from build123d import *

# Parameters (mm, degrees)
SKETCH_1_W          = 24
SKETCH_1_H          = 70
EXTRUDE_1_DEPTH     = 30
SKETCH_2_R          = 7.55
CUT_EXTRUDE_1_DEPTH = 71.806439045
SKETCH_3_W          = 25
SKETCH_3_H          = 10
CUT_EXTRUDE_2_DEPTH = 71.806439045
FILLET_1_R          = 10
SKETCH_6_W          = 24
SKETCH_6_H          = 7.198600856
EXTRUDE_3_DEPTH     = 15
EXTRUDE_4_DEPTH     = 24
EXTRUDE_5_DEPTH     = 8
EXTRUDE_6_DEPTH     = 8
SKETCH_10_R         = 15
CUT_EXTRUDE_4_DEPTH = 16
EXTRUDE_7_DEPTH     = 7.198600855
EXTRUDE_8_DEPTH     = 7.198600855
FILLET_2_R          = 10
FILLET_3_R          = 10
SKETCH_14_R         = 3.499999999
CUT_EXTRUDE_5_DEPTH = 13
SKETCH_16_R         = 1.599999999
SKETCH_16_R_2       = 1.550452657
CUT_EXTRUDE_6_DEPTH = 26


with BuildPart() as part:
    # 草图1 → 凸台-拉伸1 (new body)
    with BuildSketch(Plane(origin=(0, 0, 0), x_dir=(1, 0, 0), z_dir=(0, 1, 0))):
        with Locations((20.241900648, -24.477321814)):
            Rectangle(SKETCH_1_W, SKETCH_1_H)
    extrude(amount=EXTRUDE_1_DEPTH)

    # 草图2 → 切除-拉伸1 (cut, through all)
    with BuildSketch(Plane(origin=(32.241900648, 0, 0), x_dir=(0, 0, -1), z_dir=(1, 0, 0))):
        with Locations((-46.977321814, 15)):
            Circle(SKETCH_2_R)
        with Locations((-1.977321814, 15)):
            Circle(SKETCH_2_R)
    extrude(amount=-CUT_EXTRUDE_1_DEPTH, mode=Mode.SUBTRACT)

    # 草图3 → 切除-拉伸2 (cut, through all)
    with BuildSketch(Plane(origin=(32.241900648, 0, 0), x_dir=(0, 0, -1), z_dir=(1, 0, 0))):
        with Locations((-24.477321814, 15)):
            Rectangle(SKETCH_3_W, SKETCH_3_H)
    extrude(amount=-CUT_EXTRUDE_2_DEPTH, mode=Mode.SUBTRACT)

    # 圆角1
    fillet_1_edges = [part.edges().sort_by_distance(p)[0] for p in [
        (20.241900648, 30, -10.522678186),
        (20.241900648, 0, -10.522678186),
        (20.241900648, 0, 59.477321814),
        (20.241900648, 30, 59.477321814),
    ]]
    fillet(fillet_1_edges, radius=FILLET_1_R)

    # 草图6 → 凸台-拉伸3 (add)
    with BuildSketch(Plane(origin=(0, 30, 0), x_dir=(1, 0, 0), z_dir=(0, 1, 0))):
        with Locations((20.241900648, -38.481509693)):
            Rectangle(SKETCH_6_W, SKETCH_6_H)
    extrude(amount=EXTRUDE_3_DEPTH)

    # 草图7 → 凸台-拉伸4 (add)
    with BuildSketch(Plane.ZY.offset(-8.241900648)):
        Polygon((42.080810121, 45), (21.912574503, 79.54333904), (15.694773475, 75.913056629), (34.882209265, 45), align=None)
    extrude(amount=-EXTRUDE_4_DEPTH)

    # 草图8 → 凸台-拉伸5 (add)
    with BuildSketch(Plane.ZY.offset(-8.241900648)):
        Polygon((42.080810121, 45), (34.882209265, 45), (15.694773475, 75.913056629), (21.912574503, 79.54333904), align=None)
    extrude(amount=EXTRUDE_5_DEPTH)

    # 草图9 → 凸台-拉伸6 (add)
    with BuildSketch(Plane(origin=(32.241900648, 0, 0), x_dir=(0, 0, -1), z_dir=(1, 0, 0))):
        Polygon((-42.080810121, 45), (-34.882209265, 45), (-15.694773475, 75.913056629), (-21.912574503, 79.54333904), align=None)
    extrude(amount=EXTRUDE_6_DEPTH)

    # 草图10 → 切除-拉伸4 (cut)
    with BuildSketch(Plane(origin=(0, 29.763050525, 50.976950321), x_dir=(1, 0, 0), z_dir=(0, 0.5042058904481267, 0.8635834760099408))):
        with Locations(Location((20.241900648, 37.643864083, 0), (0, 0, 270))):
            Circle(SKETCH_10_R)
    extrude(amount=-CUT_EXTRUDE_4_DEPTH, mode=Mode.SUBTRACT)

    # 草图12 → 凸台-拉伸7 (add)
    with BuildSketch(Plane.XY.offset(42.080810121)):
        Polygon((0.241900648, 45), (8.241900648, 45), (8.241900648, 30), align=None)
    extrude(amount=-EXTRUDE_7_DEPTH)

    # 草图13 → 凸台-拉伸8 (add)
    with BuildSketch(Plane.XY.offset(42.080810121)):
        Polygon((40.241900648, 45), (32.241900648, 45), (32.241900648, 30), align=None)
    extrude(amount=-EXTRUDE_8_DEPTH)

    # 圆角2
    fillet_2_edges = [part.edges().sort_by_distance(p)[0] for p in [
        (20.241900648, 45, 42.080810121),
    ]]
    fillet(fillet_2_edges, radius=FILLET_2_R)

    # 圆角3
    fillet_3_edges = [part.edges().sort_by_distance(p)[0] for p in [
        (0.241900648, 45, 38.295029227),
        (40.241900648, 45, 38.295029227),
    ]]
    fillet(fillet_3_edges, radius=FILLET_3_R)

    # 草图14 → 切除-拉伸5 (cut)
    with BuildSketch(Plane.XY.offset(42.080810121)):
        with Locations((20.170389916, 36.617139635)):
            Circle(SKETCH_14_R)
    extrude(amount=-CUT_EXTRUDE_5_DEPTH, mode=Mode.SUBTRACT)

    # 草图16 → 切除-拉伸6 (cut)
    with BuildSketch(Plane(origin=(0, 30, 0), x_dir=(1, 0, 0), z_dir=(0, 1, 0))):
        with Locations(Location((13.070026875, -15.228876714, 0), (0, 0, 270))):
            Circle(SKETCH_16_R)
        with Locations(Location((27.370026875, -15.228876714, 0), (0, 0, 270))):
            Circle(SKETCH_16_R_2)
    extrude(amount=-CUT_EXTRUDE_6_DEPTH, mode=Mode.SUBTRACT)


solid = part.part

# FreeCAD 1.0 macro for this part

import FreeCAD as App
import Part
import Sketcher

V = App.Vector


def edges_at(feature, points):
    """Names of the edges that pass closest to the given points."""
    edges = feature.Shape.Edges
    near = lambda p: min(range(len(edges)), key=lambda i: edges[i].distToShape(Part.Vertex(*p))[0])
    return sorted({f"Edge{near(p) + 1}" for p in points})

doc = App.newDocument("Part")
body = doc.addObject("PartDesign::Body", "Body")

# Sketch on XZ plane
sketch1 = doc.addObject("Sketcher::SketchObject", "Sketch")
body.addObject(sketch1)
sketch1.AttachmentSupport = (doc.XZ_Plane, [""])
sketch1.MapMode = "FlatFace"
sketch1.addGeometry([
    Part.LineSegment(V(8, -11, 0), V(8, 59, 0)),
    Part.LineSegment(V(8, 59, 0), V(32, 59, 0)),
    Part.LineSegment(V(32, 59, 0), V(32, -11, 0)),
    Part.LineSegment(V(32, -11, 0), V(8, -11, 0)),
], False)
sketch1.addConstraint([
    Sketcher.Constraint("Coincident", 0, 2, 1, 1),
    Sketcher.Constraint("Coincident", 1, 2, 2, 1),
    Sketcher.Constraint("Coincident", 2, 2, 3, 1),
    Sketcher.Constraint("Coincident", 3, 2, 0, 1),
    Sketcher.Constraint("Vertical", 0),
    Sketcher.Constraint("Horizontal", 1),
    Sketcher.Constraint("Vertical", 2),
    Sketcher.Constraint("Horizontal", 3),
    Sketcher.Constraint("DistanceX", 1, 1, 1, 2, 24.0),
    Sketcher.Constraint("DistanceY", 0, 1, 0, 2, 70.0),
    Sketcher.Constraint("DistanceX", -1, 1, 0, 2, 8.241901),
    Sketcher.Constraint("DistanceY", -1, 1, 0, 2, 59.477322),
])
pad1 = doc.addObject("PartDesign::Pad", "Pad")
body.addObject(pad1)
pad1.Profile = sketch1
pad1.Length = 30
pad1.Reversed = True

# Sketch on YZ plane
sketch2 = doc.addObject("Sketcher::SketchObject", "Sketch001")
body.addObject(sketch2)
sketch2.AttachmentSupport = (doc.YZ_Plane, [""])
sketch2.MapMode = "FlatFace"
sketch2.AttachmentOffset = App.Placement(V(0, 0, 32.241901), App.Rotation())
sketch2.addGeometry([
    Part.Circle(V(15, 47, 0), V(0, 0, 1), 8),
    Part.Circle(V(15, 2, 0), V(0, 0, 1), 8),
], False)
sketch2.addConstraint([
    Sketcher.Constraint("Equal", 0, 1),
    Sketcher.Constraint("Vertical", 0, 3, 1, 3),
    Sketcher.Constraint("Diameter", 0, 15.1),
    Sketcher.Constraint("DistanceX", -1, 1, 0, 3, 15.0),
    Sketcher.Constraint("DistanceY", 1, 3, 0, 3, 45.0),
    Sketcher.Constraint("DistanceY", -1, 1, 0, 3, 46.977322),
])
pocket1 = doc.addObject("PartDesign::Pocket", "Pocket")
body.addObject(pocket1)
pocket1.Profile = sketch2
pocket1.Type = "ThroughAll"

# Sketch on YZ plane
sketch3 = doc.addObject("Sketcher::SketchObject", "Sketch002")
body.addObject(sketch3)
sketch3.AttachmentSupport = (doc.YZ_Plane, [""])
sketch3.MapMode = "FlatFace"
sketch3.AttachmentOffset = App.Placement(V(0, 0, 32.241901), App.Rotation())
sketch3.addGeometry([
    Part.LineSegment(V(20, 37, 0), V(10, 37, 0)),
    Part.LineSegment(V(10, 37, 0), V(10, 12, 0)),
    Part.LineSegment(V(10, 12, 0), V(20, 12, 0)),
    Part.LineSegment(V(20, 12, 0), V(20, 37, 0)),
], False)
sketch3.addConstraint([
    Sketcher.Constraint("Coincident", 0, 2, 1, 1),
    Sketcher.Constraint("Coincident", 1, 2, 2, 1),
    Sketcher.Constraint("Coincident", 2, 2, 3, 1),
    Sketcher.Constraint("Coincident", 3, 2, 0, 1),
    Sketcher.Constraint("Horizontal", 0),
    Sketcher.Constraint("Vertical", 1),
    Sketcher.Constraint("Horizontal", 2),
    Sketcher.Constraint("Vertical", 3),
    Sketcher.Constraint("DistanceX", 0, 2, 0, 1, 10.0),
    Sketcher.Constraint("DistanceY", 1, 2, 1, 1, 25.0),
    Sketcher.Constraint("DistanceX", -1, 1, 0, 2, 10.0),
    Sketcher.Constraint("DistanceY", -1, 1, 0, 2, 36.977322),
])
pocket2 = doc.addObject("PartDesign::Pocket", "Pocket001")
body.addObject(pocket2)
pocket2.Profile = sketch3
pocket2.Type = "ThroughAll"
doc.recompute()

fillet = doc.addObject("PartDesign::Fillet", "Fillet")
body.addObject(fillet)
fillet.Base = (pocket2, edges_at(pocket2, [
    (20.242, 30, -10.523),
    (20.242, 0, -10.523),
    (20.242, 0, 59.477),
    (20.242, 30, 59.477),
]))
fillet.Radius = 10

# Sketch on XZ plane
sketch4 = doc.addObject("Sketcher::SketchObject", "Sketch003")
body.addObject(sketch4)
sketch4.AttachmentSupport = (doc.XZ_Plane, [""])
sketch4.MapMode = "FlatFace"
sketch4.AttachmentOffset = App.Placement(V(0, 0, -30), App.Rotation())
sketch4.addGeometry([
    Part.LineSegment(V(8, 35, 0), V(8, 42, 0)),
    Part.LineSegment(V(8, 42, 0), V(32, 42, 0)),
    Part.LineSegment(V(32, 42, 0), V(32, 35, 0)),
    Part.LineSegment(V(32, 35, 0), V(8, 35, 0)),
], False)
sketch4.addConstraint([
    Sketcher.Constraint("Coincident", 0, 2, 1, 1),
    Sketcher.Constraint("Coincident", 1, 2, 2, 1),
    Sketcher.Constraint("Coincident", 2, 2, 3, 1),
    Sketcher.Constraint("Coincident", 3, 2, 0, 1),
    Sketcher.Constraint("Vertical", 0),
    Sketcher.Constraint("Horizontal", 1),
    Sketcher.Constraint("Vertical", 2),
    Sketcher.Constraint("Horizontal", 3),
    Sketcher.Constraint("DistanceX", 1, 1, 1, 2, 24.0),
    Sketcher.Constraint("DistanceY", 0, 1, 0, 2, 7.198601),
    Sketcher.Constraint("DistanceX", -1, 1, 0, 2, 8.241901),
    Sketcher.Constraint("DistanceY", -1, 1, 0, 2, 42.08081),
])
pad2 = doc.addObject("PartDesign::Pad", "Pad001")
body.addObject(pad2)
pad2.Profile = sketch4
pad2.Length = 15
pad2.Reversed = True

# Sketch on YZ plane
sketch5 = doc.addObject("Sketcher::SketchObject", "Sketch004")
body.addObject(sketch5)
sketch5.AttachmentSupport = (doc.YZ_Plane, [""])
sketch5.MapMode = "FlatFace"
sketch5.AttachmentOffset = App.Placement(V(0, 0, 8.241901), App.Rotation())
sketch5.addGeometry([
    Part.LineSegment(V(45, 42, 0), V(80, 22, 0)),
    Part.LineSegment(V(80, 22, 0), V(76, 16, 0)),
    Part.LineSegment(V(76, 16, 0), V(45, 35, 0)),
    Part.LineSegment(V(45, 35, 0), V(45, 42, 0)),
], False)
sketch5.addConstraint([
    Sketcher.Constraint("Coincident", 0, 2, 1, 1),
    Sketcher.Constraint("Coincident", 1, 2, 2, 1),
    Sketcher.Constraint("Coincident", 2, 2, 3, 1),
    Sketcher.Constraint("Coincident", 3, 2, 0, 1),
    Sketcher.Constraint("Vertical", 3),
    Sketcher.Constraint("Perpendicular", 0, 1),
    Sketcher.Constraint("Distance", 0, 40.0),
    Sketcher.Constraint("DistanceX", -1, 1, 2, 2, 45.0),
    Sketcher.Constraint("Distance", 1, 7.2),
    Sketcher.Constraint("DistanceY", 3, 1, 3, 2, 7.198601),
    Sketcher.Constraint("DistanceY", 1, 2, 0, 2, 6.217801),
    Sketcher.Constraint("DistanceY", -1, 1, 2, 2, 34.882209),
])
pad3 = doc.addObject("PartDesign::Pad", "Pad002")
body.addObject(pad3)
pad3.Profile = sketch5
pad3.Length = 24

# Sketch on YZ plane
sketch6 = doc.addObject("Sketcher::SketchObject", "Sketch005")
body.addObject(sketch6)
sketch6.AttachmentSupport = (doc.YZ_Plane, [""])
sketch6.MapMode = "FlatFace"
sketch6.AttachmentOffset = App.Placement(V(0, 0, 8.241901), App.Rotation())
sketch6.addGeometry([
    Part.LineSegment(V(45, 35, 0), V(45, 42, 0)),
    Part.LineSegment(V(45, 42, 0), V(80, 22, 0)),
    Part.LineSegment(V(80, 22, 0), V(76, 16, 0)),
    Part.LineSegment(V(76, 16, 0), V(45, 35, 0)),
], False)
sketch6.addConstraint([
    Sketcher.Constraint("Coincident", 0, 2, 1, 1),
    Sketcher.Constraint("Coincident", 1, 2, 2, 1),
    Sketcher.Constraint("Coincident", 2, 2, 3, 1),
    Sketcher.Constraint("Coincident", 3, 2, 0, 1),
    Sketcher.Constraint("Vertical", 0),
    Sketcher.Constraint("Perpendicular", 1, 2),
    Sketcher.Constraint("Distance", 1, 40.0),
    Sketcher.Constraint("DistanceX", -1, 1, 0, 2, 45.0),
    Sketcher.Constraint("Distance", 2, 7.2),
    Sketcher.Constraint("DistanceY", 0, 1, 0, 2, 7.198601),
    Sketcher.Constraint("DistanceY", 2, 2, 1, 2, 6.217801),
    Sketcher.Constraint("DistanceY", -1, 1, 0, 2, 42.08081),
])
pad4 = doc.addObject("PartDesign::Pad", "Pad003")
body.addObject(pad4)
pad4.Profile = sketch6
pad4.Length = 8
pad4.Reversed = True

# Sketch on YZ plane
sketch7 = doc.addObject("Sketcher::SketchObject", "Sketch006")
body.addObject(sketch7)
sketch7.AttachmentSupport = (doc.YZ_Plane, [""])
sketch7.MapMode = "FlatFace"
sketch7.AttachmentOffset = App.Placement(V(0, 0, 32.241901), App.Rotation())
sketch7.addGeometry([
    Part.LineSegment(V(45, 42, 0), V(45, 35, 0)),
    Part.LineSegment(V(45, 35, 0), V(76, 16, 0)),
    Part.LineSegment(V(76, 16, 0), V(80, 22, 0)),
    Part.LineSegment(V(80, 22, 0), V(45, 42, 0)),
], False)
sketch7.addConstraint([
    Sketcher.Constraint("Coincident", 0, 2, 1, 1),
    Sketcher.Constraint("Coincident", 1, 2, 2, 1),
    Sketcher.Constraint("Coincident", 2, 2, 3, 1),
    Sketcher.Constraint("Coincident", 3, 2, 0, 1),
    Sketcher.Constraint("Vertical", 0),
    Sketcher.Constraint("Perpendicular", 2, 3),
    Sketcher.Constraint("Distance", 3, 40.0),
    Sketcher.Constraint("DistanceX", -1, 1, 0, 2, 45.0),
    Sketcher.Constraint("Distance", 2, 7.2),
    Sketcher.Constraint("DistanceY", 0, 2, 0, 1, 7.198601),
    Sketcher.Constraint("DistanceY", 1, 2, 2, 2, 6.217801),
    Sketcher.Constraint("DistanceY", -1, 1, 0, 2, 34.882209),
])
pad5 = doc.addObject("PartDesign::Pad", "Pad004")
body.addObject(pad5)
pad5.Profile = sketch7
pad5.Length = 8

# Sketch on an angled plane
sketch8 = doc.addObject("Sketcher::SketchObject", "Sketch007")
body.addObject(sketch8)
sketch8.Placement = App.Placement(V(0, 29.763051, 50.97695), App.Rotation(V(1, 0, 0), V(0, 0.863583476, -0.50420589), V(0, 0.50420589, 0.863583476), "ZXY"))
sketch8.addGeometry(Part.Circle(V(20, 38, 0), V(0, 0, 1), 15), False)
sketch8.addConstraint([
    Sketcher.Constraint("Diameter", 0, 30.0),
    Sketcher.Constraint("DistanceX", -1, 1, 0, 3, 20.241901),
    Sketcher.Constraint("DistanceY", -1, 1, 0, 3, 37.643864),
])
pocket3 = doc.addObject("PartDesign::Pocket", "Pocket002")
body.addObject(pocket3)
pocket3.Profile = sketch8
pocket3.Length = 16

# Sketch on XY plane
sketch9 = doc.addObject("Sketcher::SketchObject", "Sketch008")
body.addObject(sketch9)
sketch9.AttachmentSupport = (doc.XY_Plane, [""])
sketch9.MapMode = "FlatFace"
sketch9.AttachmentOffset = App.Placement(V(0, 0, 42.08081), App.Rotation())
sketch9.addGeometry([
    Part.LineSegment(V(8, 45, 0), V(0, 45, 0)),
    Part.LineSegment(V(0, 45, 0), V(8, 30, 0)),
    Part.LineSegment(V(8, 30, 0), V(8, 45, 0)),
], False)
sketch9.addConstraint([
    Sketcher.Constraint("Coincident", 0, 2, 1, 1),
    Sketcher.Constraint("Coincident", 1, 2, 2, 1),
    Sketcher.Constraint("Coincident", 2, 2, 0, 1),
    Sketcher.Constraint("Horizontal", 0),
    Sketcher.Constraint("Vertical", 2),
    Sketcher.Constraint("DistanceX", 0, 2, 0, 1, 8.0),
    Sketcher.Constraint("DistanceY", 2, 1, 2, 2, 15.0),
    Sketcher.Constraint("DistanceY", -1, 1, 0, 2, 45.0),
    Sketcher.Constraint("DistanceX", -1, 1, 0, 2, 0.241901),
])
pad6 = doc.addObject("PartDesign::Pad", "Pad005")
body.addObject(pad6)
pad6.Profile = sketch9
pad6.Length = 7.198601
pad6.Reversed = True

# Sketch on XY plane
sketch10 = doc.addObject("Sketcher::SketchObject", "Sketch009")
body.addObject(sketch10)
sketch10.AttachmentSupport = (doc.XY_Plane, [""])
sketch10.MapMode = "FlatFace"
sketch10.AttachmentOffset = App.Placement(V(0, 0, 42.08081), App.Rotation())
sketch10.addGeometry([
    Part.LineSegment(V(40, 45, 0), V(32, 45, 0)),
    Part.LineSegment(V(32, 45, 0), V(32, 30, 0)),
    Part.LineSegment(V(32, 30, 0), V(40, 45, 0)),
], False)
sketch10.addConstraint([
    Sketcher.Constraint("Coincident", 0, 2, 1, 1),
    Sketcher.Constraint("Coincident", 1, 2, 2, 1),
    Sketcher.Constraint("Coincident", 2, 2, 0, 1),
    Sketcher.Constraint("Horizontal", 0),
    Sketcher.Constraint("Vertical", 1),
    Sketcher.Constraint("DistanceX", 0, 2, 0, 1, 8.0),
    Sketcher.Constraint("DistanceY", 1, 2, 1, 1, 15.0),
    Sketcher.Constraint("DistanceY", -1, 1, 0, 2, 45.0),
    Sketcher.Constraint("DistanceX", -1, 1, 0, 2, 32.241901),
])
pad7 = doc.addObject("PartDesign::Pad", "Pad006")
body.addObject(pad7)
pad7.Profile = sketch10
pad7.Length = 7.198601
pad7.Reversed = True
doc.recompute()

fillet2 = doc.addObject("PartDesign::Fillet", "Fillet001")
body.addObject(fillet2)
fillet2.Base = (pad7, edges_at(pad7, [(20.242, 45, 42.081)]))
fillet2.Radius = 10
doc.recompute()

fillet3 = doc.addObject("PartDesign::Fillet", "Fillet002")
body.addObject(fillet3)
fillet3.Base = (fillet2, edges_at(fillet2, [(0.242, 45, 38.295), (40.242, 45, 38.295)]))
fillet3.Radius = 10

# Sketch on XY plane
sketch11 = doc.addObject("Sketcher::SketchObject", "Sketch010")
body.addObject(sketch11)
sketch11.AttachmentSupport = (doc.XY_Plane, [""])
sketch11.MapMode = "FlatFace"
sketch11.AttachmentOffset = App.Placement(V(0, 0, 42.08081), App.Rotation())
sketch11.addGeometry(Part.Circle(V(20.2, 36.6, 0), V(0, 0, 1), 3.5), False)
sketch11.addConstraint([
    Sketcher.Constraint("Diameter", 0, 7.0),
    Sketcher.Constraint("DistanceX", -1, 1, 0, 3, 20.17039),
    Sketcher.Constraint("DistanceY", -1, 1, 0, 3, 36.61714),
])
pocket4 = doc.addObject("PartDesign::Pocket", "Pocket003")
body.addObject(pocket4)
pocket4.Profile = sketch11
pocket4.Length = 13

# Sketch on XZ plane
sketch12 = doc.addObject("Sketcher::SketchObject", "Sketch011")
body.addObject(sketch12)
sketch12.AttachmentSupport = (doc.XZ_Plane, [""])
sketch12.MapMode = "FlatFace"
sketch12.AttachmentOffset = App.Placement(V(0, 0, -30), App.Rotation())
sketch12.addGeometry([
    Part.Circle(V(13.1, 15.2, 0), V(0, 0, 1), 1.6),
    Part.Circle(V(27.4, 15.2, 0), V(0, 0, 1), 1.6),
], False)
sketch12.addConstraint([
    Sketcher.Constraint("Horizontal", 0, 3, 1, 3),
    Sketcher.Constraint("Diameter", 0, 3.2),
    Sketcher.Constraint("DistanceX", 0, 3, 1, 3, 14.3),
    Sketcher.Constraint("Diameter", 1, 3.100905),
    Sketcher.Constraint("DistanceX", -1, 1, 0, 3, 13.070027),
    Sketcher.Constraint("DistanceY", -1, 1, 0, 3, 15.228877),
])
pocket5 = doc.addObject("PartDesign::Pocket", "Pocket004")
body.addObject(pocket5)
pocket5.Profile = sketch12
pocket5.Length = 26
pocket5.Reversed = True

doc.recompute()
